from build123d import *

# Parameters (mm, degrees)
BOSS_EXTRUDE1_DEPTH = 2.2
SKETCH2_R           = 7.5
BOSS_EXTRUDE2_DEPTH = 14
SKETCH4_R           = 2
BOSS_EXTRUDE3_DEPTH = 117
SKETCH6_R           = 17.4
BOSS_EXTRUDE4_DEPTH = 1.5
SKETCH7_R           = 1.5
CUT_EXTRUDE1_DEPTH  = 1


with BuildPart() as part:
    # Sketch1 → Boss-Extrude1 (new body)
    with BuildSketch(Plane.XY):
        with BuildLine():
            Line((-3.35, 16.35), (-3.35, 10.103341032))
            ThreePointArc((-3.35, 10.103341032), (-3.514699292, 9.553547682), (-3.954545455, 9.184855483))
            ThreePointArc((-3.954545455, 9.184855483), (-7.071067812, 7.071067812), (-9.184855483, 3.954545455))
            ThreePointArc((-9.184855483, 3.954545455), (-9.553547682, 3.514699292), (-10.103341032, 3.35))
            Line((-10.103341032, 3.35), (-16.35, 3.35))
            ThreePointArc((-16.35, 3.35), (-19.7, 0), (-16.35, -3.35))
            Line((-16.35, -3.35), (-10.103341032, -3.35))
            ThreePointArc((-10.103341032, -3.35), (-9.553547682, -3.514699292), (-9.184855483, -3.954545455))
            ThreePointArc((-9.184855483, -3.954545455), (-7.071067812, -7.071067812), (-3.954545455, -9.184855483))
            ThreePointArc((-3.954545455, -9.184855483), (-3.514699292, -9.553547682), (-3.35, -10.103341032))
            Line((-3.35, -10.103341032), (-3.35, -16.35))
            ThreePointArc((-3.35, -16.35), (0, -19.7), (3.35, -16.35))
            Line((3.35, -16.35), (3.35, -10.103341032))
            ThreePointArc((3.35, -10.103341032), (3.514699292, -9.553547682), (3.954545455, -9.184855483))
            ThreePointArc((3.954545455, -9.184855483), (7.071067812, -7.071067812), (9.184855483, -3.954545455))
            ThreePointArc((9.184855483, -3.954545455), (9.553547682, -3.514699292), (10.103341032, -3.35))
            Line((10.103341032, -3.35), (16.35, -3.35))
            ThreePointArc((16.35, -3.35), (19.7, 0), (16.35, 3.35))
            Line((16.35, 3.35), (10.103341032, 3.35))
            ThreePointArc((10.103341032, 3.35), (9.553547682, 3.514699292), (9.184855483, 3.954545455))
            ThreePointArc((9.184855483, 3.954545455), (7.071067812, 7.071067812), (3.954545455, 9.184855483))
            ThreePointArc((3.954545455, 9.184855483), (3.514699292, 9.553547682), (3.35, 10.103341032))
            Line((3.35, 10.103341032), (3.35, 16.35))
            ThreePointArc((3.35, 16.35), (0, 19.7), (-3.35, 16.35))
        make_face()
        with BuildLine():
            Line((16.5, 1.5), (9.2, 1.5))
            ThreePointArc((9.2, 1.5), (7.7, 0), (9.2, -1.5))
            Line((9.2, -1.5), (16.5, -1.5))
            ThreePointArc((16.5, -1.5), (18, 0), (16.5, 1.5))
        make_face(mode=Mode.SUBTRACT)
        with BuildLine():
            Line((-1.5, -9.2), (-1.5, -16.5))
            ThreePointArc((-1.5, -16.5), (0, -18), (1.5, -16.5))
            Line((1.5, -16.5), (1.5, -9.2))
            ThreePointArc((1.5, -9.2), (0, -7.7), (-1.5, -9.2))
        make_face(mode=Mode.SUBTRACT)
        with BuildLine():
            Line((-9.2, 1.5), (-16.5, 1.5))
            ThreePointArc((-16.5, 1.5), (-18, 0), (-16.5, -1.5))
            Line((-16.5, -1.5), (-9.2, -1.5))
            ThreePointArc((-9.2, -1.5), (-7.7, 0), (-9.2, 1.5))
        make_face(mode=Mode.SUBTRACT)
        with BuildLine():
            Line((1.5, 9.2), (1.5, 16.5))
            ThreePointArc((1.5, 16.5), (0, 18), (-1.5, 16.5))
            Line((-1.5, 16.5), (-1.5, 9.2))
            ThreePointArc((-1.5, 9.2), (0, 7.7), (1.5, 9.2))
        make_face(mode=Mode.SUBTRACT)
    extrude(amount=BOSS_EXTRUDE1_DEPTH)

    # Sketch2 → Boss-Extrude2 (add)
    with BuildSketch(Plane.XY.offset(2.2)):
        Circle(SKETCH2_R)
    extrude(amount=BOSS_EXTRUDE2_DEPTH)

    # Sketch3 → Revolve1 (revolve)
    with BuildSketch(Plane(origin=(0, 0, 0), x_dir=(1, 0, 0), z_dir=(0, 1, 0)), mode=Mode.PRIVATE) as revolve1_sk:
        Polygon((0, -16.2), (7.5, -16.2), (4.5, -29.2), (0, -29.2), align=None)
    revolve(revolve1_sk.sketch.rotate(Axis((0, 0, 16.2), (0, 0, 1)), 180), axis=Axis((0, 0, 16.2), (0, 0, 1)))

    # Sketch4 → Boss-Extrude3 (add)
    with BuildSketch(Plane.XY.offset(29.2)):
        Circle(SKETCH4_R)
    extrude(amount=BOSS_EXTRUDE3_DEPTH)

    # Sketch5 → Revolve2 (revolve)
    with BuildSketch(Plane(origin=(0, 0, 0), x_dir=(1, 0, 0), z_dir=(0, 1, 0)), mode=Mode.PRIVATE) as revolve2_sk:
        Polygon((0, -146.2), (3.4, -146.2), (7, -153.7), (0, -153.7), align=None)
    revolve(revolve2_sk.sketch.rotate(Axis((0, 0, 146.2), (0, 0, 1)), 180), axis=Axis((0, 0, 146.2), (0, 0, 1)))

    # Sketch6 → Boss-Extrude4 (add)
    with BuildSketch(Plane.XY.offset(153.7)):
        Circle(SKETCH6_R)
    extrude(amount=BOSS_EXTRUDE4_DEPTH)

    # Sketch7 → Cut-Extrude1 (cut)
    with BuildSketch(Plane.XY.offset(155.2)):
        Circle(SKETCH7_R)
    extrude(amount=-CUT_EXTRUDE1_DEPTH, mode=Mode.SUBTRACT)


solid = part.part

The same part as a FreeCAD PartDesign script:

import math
import FreeCAD as App
import Part
import Sketcher
from FreeCAD import Vector


def add_polygon(sketch, points):
    """Adds a closed chain of lines whose ends are joined by coincident constraints."""
    first, n = sketch.GeometryCount, len(points)
    for a, b in zip(points, points[1:] + points[:1]):
        sketch.addGeometry(Part.LineSegment(App.Vector(*a, 0), App.Vector(*b, 0)), False)
    for i in range(n):
        sketch.addConstraint(Sketcher.Constraint("Coincident", first + i, 2, first + (i + 1) % n, 1))

doc = App.newDocument("Part")
body = doc.addObject("PartDesign::Body", "Body")

sketch1 = doc.addObject("Sketcher::SketchObject", "Sketch")
body.addObject(sketch1)
sketch1.AttachmentSupport = (doc.XY_Plane, [""])
sketch1.MapMode = "FlatFace"
sketch1.addGeometry([
    Part.LineSegment(Vector(-3.4, 16.4, 0), Vector(-3.4, 10.1, 0)),
    Part.ArcOfCircle(Part.Circle(Vector(-4.3, 10.1, 0), Vector(0, 0, 1), 1), math.radians(-67), math.radians(0)),
    Part.ArcOfCircle(Part.Circle(Vector(0, 0, 0), Vector(0, 0, 1), 10), math.radians(113), math.radians(157)),
    Part.ArcOfCircle(Part.Circle(Vector(-10.1, 4.3, 0), Vector(0, 0, 1), 1), math.radians(-90), math.radians(-23)),
    Part.LineSegment(Vector(-10.1, 3.4, 0), Vector(-16.4, 3.4, 0)),
    Part.ArcOfCircle(Part.Circle(Vector(-16.4, 0, 0), Vector(0, 0, 1), 3.4), math.radians(90), math.radians(270)),
    Part.LineSegment(Vector(-16.4, -3.4, 0), Vector(-10.1, -3.4, 0)),
    Part.ArcOfCircle(Part.Circle(Vector(-10.1, -4.3, 0), Vector(0, 0, 1), 1), math.radians(23), math.radians(90)),
    Part.ArcOfCircle(Part.Circle(Vector(0, 0, 0), Vector(0, 0, 1), 10), math.radians(-157), math.radians(-113)),
    Part.ArcOfCircle(Part.Circle(Vector(-4.3, -10.1, 0), Vector(0, 0, 1), 1), math.radians(0), math.radians(67)),
    Part.LineSegment(Vector(-3.4, -10.1, 0), Vector(-3.4, -16.4, 0)),
    Part.ArcOfCircle(Part.Circle(Vector(0, -16.4, 0), Vector(0, 0, 1), 3.4), math.radians(180), math.radians(360)),
    Part.LineSegment(Vector(3.4, -16.4, 0), Vector(3.4, -10.1, 0)),
    Part.ArcOfCircle(Part.Circle(Vector(4.3, -10.1, 0), Vector(0, 0, 1), 1), math.radians(113), math.radians(180)),
    Part.ArcOfCircle(Part.Circle(Vector(0, 0, 0), Vector(0, 0, 1), 10), math.radians(-67), math.radians(-23)),
    Part.ArcOfCircle(Part.Circle(Vector(10.1, -4.3, 0), Vector(0, 0, 1), 1), math.radians(90), math.radians(157)),
    Part.LineSegment(Vector(10.1, -3.4, 0), Vector(16.4, -3.4, 0)),
    Part.ArcOfCircle(Part.Circle(Vector(16.4, 0, 0), Vector(0, 0, 1), 3.4), math.radians(-90), math.radians(90)),
    Part.LineSegment(Vector(16.4, 3.4, 0), Vector(10.1, 3.4, 0)),
    Part.ArcOfCircle(Part.Circle(Vector(10.1, 4.3, 0), Vector(0, 0, 1), 1), math.radians(-157), math.radians(-90)),
    Part.ArcOfCircle(Part.Circle(Vector(0, 0, 0), Vector(0, 0, 1), 10), math.radians(23), math.radians(67)),
    Part.ArcOfCircle(Part.Circle(Vector(4.3, 10.1, 0), Vector(0, 0, 1), 1), math.radians(180), math.radians(247)),
    Part.LineSegment(Vector(3.4, 10.1, 0), Vector(3.4, 16.4, 0)),
    Part.ArcOfCircle(Part.Circle(Vector(0, 16.4, 0), Vector(0, 0, 1), 3.4), math.radians(0), math.radians(180)),
    Part.LineSegment(Vector(-1.5, -16.5, 0), Vector(-1.5, -9.2, 0)),
    Part.ArcOfCircle(Part.Circle(Vector(0, -9.2, 0), Vector(0, 0, 1), 1.5), math.radians(0), math.radians(180)),
    Part.LineSegment(Vector(1.5, -9.2, 0), Vector(1.5, -16.5, 0)),
    Part.ArcOfCircle(Part.Circle(Vector(0, -16.5, 0), Vector(0, 0, 1), 1.5), math.radians(180), math.radians(360)),
    Part.LineSegment(Vector(-16.5, 1.5, 0), Vector(-9.2, 1.5, 0)),
    Part.ArcOfCircle(Part.Circle(Vector(-9.2, 0, 0), Vector(0, 0, 1), 1.5), math.radians(-90), math.radians(90)),
    Part.LineSegment(Vector(-9.2, -1.5, 0), Vector(-16.5, -1.5, 0)),
    Part.ArcOfCircle(Part.Circle(Vector(-16.5, 0, 0), Vector(0, 0, 1), 1.5), math.radians(90), math.radians(270)),
    Part.LineSegment(Vector(9.2, 1.5, 0), Vector(16.5, 1.5, 0)),
    Part.ArcOfCircle(Part.Circle(Vector(16.5, 0, 0), Vector(0, 0, 1), 1.5), math.radians(-90), math.radians(90)),
    Part.LineSegment(Vector(16.5, -1.5, 0), Vector(9.2, -1.5, 0)),
    Part.ArcOfCircle(Part.Circle(Vector(9.2, 0, 0), Vector(0, 0, 1), 1.5), math.radians(90), math.radians(270)),
    Part.LineSegment(Vector(1.5, 16.5, 0), Vector(1.5, 9.2, 0)),
    Part.ArcOfCircle(Part.Circle(Vector(0, 9.2, 0), Vector(0, 0, 1), 1.5), math.radians(180), math.radians(360)),
    Part.LineSegment(Vector(-1.5, 9.2, 0), Vector(-1.5, 16.5, 0)),
    Part.ArcOfCircle(Part.Circle(Vector(0, 16.5, 0), Vector(0, 0, 1), 1.5), math.radians(0), math.radians(180)),
], False)
sketch1.addConstraint([
    Sketcher.Constraint("Tangent", 0, 2, 1, 2),
    Sketcher.Constraint("Tangent", 1, 1, 2, 1),
    Sketcher.Constraint("Tangent", 2, 2, 3, 2),
    Sketcher.Constraint("Tangent", 3, 1, 4, 1),
    Sketcher.Constraint("Tangent", 4, 2, 5, 1),
    Sketcher.Constraint("Tangent", 5, 2, 6, 1),
    Sketcher.Constraint("Tangent", 6, 2, 7, 2),
    Sketcher.Constraint("Tangent", 7, 1, 8, 1),
    Sketcher.Constraint("Tangent", 8, 2, 9, 2),
    Sketcher.Constraint("Tangent", 9, 1, 10, 1),
    Sketcher.Constraint("Tangent", 10, 2, 11, 1),
    Sketcher.Constraint("Tangent", 11, 2, 12, 1),
    Sketcher.Constraint("Tangent", 12, 2, 13, 2),
    Sketcher.Constraint("Tangent", 13, 1, 14, 1),
    Sketcher.Constraint("Tangent", 14, 2, 15, 2),
    Sketcher.Constraint("Tangent", 15, 1, 16, 1),
    Sketcher.Constraint("Tangent", 16, 2, 17, 1),
    Sketcher.Constraint("Tangent", 17, 2, 18, 1),
    Sketcher.Constraint("Tangent", 18, 2, 19, 2),
    Sketcher.Constraint("Tangent", 19, 1, 20, 1),
    Sketcher.Constraint("Tangent", 20, 2, 21, 2),
    Sketcher.Constraint("Tangent", 21, 1, 22, 1),
    Sketcher.Constraint("Tangent", 22, 2, 23, 1),
    Sketcher.Constraint("Tangent", 23, 2, 0, 1),
    Sketcher.Constraint("Tangent", 24, 2, 25, 2),
    Sketcher.Constraint("Tangent", 25, 1, 26, 1),
    Sketcher.Constraint("Tangent", 26, 2, 27, 2),
    Sketcher.Constraint("Tangent", 27, 1, 24, 1),
    Sketcher.Constraint("Tangent", 28, 2, 29, 2),
    Sketcher.Constraint("Tangent", 29, 1, 30, 1),
    Sketcher.Constraint("Tangent", 30, 2, 31, 2),
    Sketcher.Constraint("Tangent", 31, 1, 28, 1),
    Sketcher.Constraint("Tangent", 32, 2, 33, 2),
    Sketcher.Constraint("Tangent", 33, 1, 34, 1),
    Sketcher.Constraint("Tangent", 34, 2, 35, 2),
    Sketcher.Constraint("Tangent", 35, 1, 32, 1),
    Sketcher.Constraint("Tangent", 36, 2, 37, 2),
    Sketcher.Constraint("Tangent", 37, 1, 38, 1),
    Sketcher.Constraint("Tangent", 38, 2, 39, 2),
    Sketcher.Constraint("Tangent", 39, 1, 36, 1),
    Sketcher.Constraint("Vertical", 0),
    Sketcher.Constraint("Horizontal", 4),
    Sketcher.Constraint("Horizontal", 6),
    Sketcher.Constraint("Vertical", 10),
    Sketcher.Constraint("Vertical", 12),
    Sketcher.Constraint("Horizontal", 16),
    Sketcher.Constraint("Horizontal", 18),
    Sketcher.Constraint("Vertical", 22),
    Sketcher.Constraint("Vertical", 24),
    Sketcher.Constraint("Vertical", 26),
    Sketcher.Constraint("Horizontal", 28),
    Sketcher.Constraint("Horizontal", 30),
    Sketcher.Constraint("Horizontal", 32),
    Sketcher.Constraint("Horizontal", 34),
    Sketcher.Constraint("Vertical", 36),
    Sketcher.Constraint("Vertical", 38),
    Sketcher.Constraint("Coincident", 2, 3, -1, 1),
    Sketcher.Constraint("Coincident", 8, 3, -1, 1),
    Sketcher.Constraint("Coincident", 14, 3, -1, 1),
    Sketcher.Constraint("Coincident", 20, 3, -1, 1),
    Sketcher.Constraint("Equal", 1, 3),
    Sketcher.Constraint("Equal", 3, 7),
    Sketcher.Constraint("Equal", 2, 8),
    Sketcher.Constraint("Equal", 7, 9),
    Sketcher.Constraint("Equal", 5, 11),
    Sketcher.Constraint("Equal", 9, 13),
    Sketcher.Constraint("Equal", 8, 14),
    Sketcher.Constraint("Equal", 13, 15),
    Sketcher.Constraint("Equal", 11, 17),
    Sketcher.Constraint("Equal", 15, 19),
    Sketcher.Constraint("Equal", 14, 20),
    Sketcher.Constraint("Equal", 19, 21),
    Sketcher.Constraint("Equal", 17, 23),
    Sketcher.Constraint("Equal", 27, 29),
    Sketcher.Constraint("Equal", 31, 33),
    Sketcher.Constraint("Equal", 35, 37),
    Sketcher.Constraint("Symmetric", 5, 3, 17, 3, -1, 1),
    Sketcher.Constraint("Symmetric", 11, 3, 23, 3, -1, 1),
    Sketcher.Constraint("Symmetric", 31, 3, 33, 3, -1, 1),
    Sketcher.Constraint("Symmetric", 25, 3, 37, 3, -1, 1),
    Sketcher.Constraint("Symmetric", 29, 3, 35, 3, -2),
    Sketcher.Constraint("Symmetric", 27, 3, 39, 3, -1),
    Sketcher.Constraint("PointOnObject", 5, 3, -1),
    Sketcher.Constraint("PointOnObject", 11, 3, -2),
    Sketcher.Constraint("Equal", 18, 0),
    Sketcher.Constraint("Equal", 34, 24),
    Sketcher.Constraint("Radius", 1, 1.0),
    Sketcher.Constraint("Radius", 2, 10.0),
    Sketcher.Constraint("Radius", 25, 1.5),
    Sketcher.Constraint("Radius", 5, 3.35),
    Sketcher.Constraint("DistanceX", 28, 1, 28, 2, 7.3),
    Sketcher.Constraint("DistanceY", 25, 3, -1, 1, 9.2),
    Sketcher.Constraint("DistanceX", 29, 3, -1, 1, 9.2),
    Sketcher.Constraint("DistanceX", 5, 3, -1, 1, 16.35),
])
pad1 = doc.addObject("PartDesign::Pad", "Pad")
body.addObject(pad1)
pad1.Profile = sketch1
pad1.Length = 2.2

sketch2 = doc.addObject("Sketcher::SketchObject", "Sketch001")
body.addObject(sketch2)
sketch2.AttachmentSupport = (doc.XY_Plane, [""])
sketch2.MapMode = "FlatFace"
sketch2.AttachmentOffset = App.Placement(Vector(0, 0, 2.2), App.Rotation())
sketch2.addGeometry(Part.Circle(Vector(0, 0, 0), Vector(0, 0, 1), 8), False)
sketch2.addConstraint([
    Sketcher.Constraint("Coincident", 0, 3, -1, 1),
    Sketcher.Constraint("Diameter", 0, 15.0),
])
pad2 = doc.addObject("PartDesign::Pad", "Pad001")
body.addObject(pad2)
pad2.Profile = sketch2
pad2.Length = 14

sketch3 = doc.addObject("Sketcher::SketchObject", "Sketch002")
body.addObject(sketch3)
sketch3.AttachmentSupport = (doc.XZ_Plane, [""])
sketch3.MapMode = "FlatFace"
add_polygon(sketch3, [(7.5, 16.2), (0, 16.2), (0, 29.2), (4.5, 29.2)])
sketch3.addConstraint([
    Sketcher.Constraint("Horizontal", 0),
    Sketcher.Constraint("Vertical", 1),
    Sketcher.Constraint("Horizontal", 2),
    Sketcher.Constraint("PointOnObject", 0, 2, -2),
    Sketcher.Constraint("DistanceY", 1, 1, 1, 2, 13.0),
    Sketcher.Constraint("DistanceX", 0, 2, 0, 1, 7.5),
    Sketcher.Constraint("DistanceX", 2, 1, 2, 2, 4.5),
    Sketcher.Constraint("DistanceY", -1, 1, 0, 2, 16.2),
])
revolution = doc.addObject("PartDesign::Revolution", "Revolution")
body.addObject(revolution)
revolution.Profile = sketch3
revolution.ReferenceAxis = (sketch3, ["V_Axis"])
revolution.Angle = 360

sketch4 = doc.addObject("Sketcher::SketchObject", "Sketch003")
body.addObject(sketch4)
sketch4.AttachmentSupport = (doc.XY_Plane, [""])
sketch4.MapMode = "FlatFace"
sketch4.AttachmentOffset = App.Placement(Vector(0, 0, 29.2), App.Rotation())
sketch4.addGeometry(Part.Circle(Vector(0, 0, 0), Vector(0, 0, 1), 2), False)
sketch4.addConstraint([
    Sketcher.Constraint("Coincident", 0, 3, -1, 1),
    Sketcher.Constraint("Diameter", 0, 4.0),
])
pad3 = doc.addObject("PartDesign::Pad", "Pad002")
body.addObject(pad3)
pad3.Profile = sketch4
pad3.Length = 117

sketch5 = doc.addObject("Sketcher::SketchObject", "Sketch004")
body.addObject(sketch5)
sketch5.AttachmentSupport = (doc.XZ_Plane, [""])
sketch5.MapMode = "FlatFace"
add_polygon(sketch5, [(3.4, 146.2), (0, 146.2), (0, 153.7), (7, 153.7)])
sketch5.addConstraint([
    Sketcher.Constraint("Horizontal", 0),
    Sketcher.Constraint("Vertical", 1),
    Sketcher.Constraint("Horizontal", 2),
    Sketcher.Constraint("PointOnObject", 0, 2, -2),
    Sketcher.Constraint("DistanceX", 2, 1, 2, 2, 7.0),
    Sketcher.Constraint("DistanceX", 0, 2, 0, 1, 3.4),
    Sketcher.Constraint("DistanceY", 1, 1, 1, 2, 7.5),
    Sketcher.Constraint("DistanceY", -1, 1, 0, 2, 146.2),
])
revolution2 = doc.addObject("PartDesign::Revolution", "Revolution001")
body.addObject(revolution2)
revolution2.Profile = sketch5
revolution2.ReferenceAxis = (sketch5, ["V_Axis"])
revolution2.Angle = 360

sketch6 = doc.addObject("Sketcher::SketchObject", "Sketch005")
body.addObject(sketch6)
sketch6.AttachmentSupport = (doc.XY_Plane, [""])
sketch6.MapMode = "FlatFace"
sketch6.AttachmentOffset = App.Placement(Vector(0, 0, 153.7), App.Rotation())
sketch6.addGeometry(Part.Circle(Vector(0, 0, 0), Vector(0, 0, 1), 17), False)
sketch6.addConstraint([
    Sketcher.Constraint("Coincident", 0, 3, -1, 1),
    Sketcher.Constraint("Diameter", 0, 34.8),
])
pad4 = doc.addObject("PartDesign::Pad", "Pad003")
body.addObject(pad4)
pad4.Profile = sketch6
pad4.Length = 1.5

sketch7 = doc.addObject("Sketcher::SketchObject", "Sketch006")
body.addObject(sketch7)
sketch7.AttachmentSupport = (doc.XY_Plane, [""])
sketch7.MapMode = "FlatFace"
sketch7.AttachmentOffset = App.Placement(Vector(0, 0, 155.2), App.Rotation())
sketch7.addGeometry(Part.Circle(Vector(0, 0, 0), Vector(0, 0, 1), 1.5), False)
sketch7.addConstraint([
    Sketcher.Constraint("Coincident", 0, 3, -1, 1),
    Sketcher.Constraint("Diameter", 0, 3.0),
])
pocket1 = doc.addObject("PartDesign::Pocket", "Pocket")
body.addObject(pocket1)
pocket1.Profile = sketch7
pocket1.Length = 1

doc.recompute()
